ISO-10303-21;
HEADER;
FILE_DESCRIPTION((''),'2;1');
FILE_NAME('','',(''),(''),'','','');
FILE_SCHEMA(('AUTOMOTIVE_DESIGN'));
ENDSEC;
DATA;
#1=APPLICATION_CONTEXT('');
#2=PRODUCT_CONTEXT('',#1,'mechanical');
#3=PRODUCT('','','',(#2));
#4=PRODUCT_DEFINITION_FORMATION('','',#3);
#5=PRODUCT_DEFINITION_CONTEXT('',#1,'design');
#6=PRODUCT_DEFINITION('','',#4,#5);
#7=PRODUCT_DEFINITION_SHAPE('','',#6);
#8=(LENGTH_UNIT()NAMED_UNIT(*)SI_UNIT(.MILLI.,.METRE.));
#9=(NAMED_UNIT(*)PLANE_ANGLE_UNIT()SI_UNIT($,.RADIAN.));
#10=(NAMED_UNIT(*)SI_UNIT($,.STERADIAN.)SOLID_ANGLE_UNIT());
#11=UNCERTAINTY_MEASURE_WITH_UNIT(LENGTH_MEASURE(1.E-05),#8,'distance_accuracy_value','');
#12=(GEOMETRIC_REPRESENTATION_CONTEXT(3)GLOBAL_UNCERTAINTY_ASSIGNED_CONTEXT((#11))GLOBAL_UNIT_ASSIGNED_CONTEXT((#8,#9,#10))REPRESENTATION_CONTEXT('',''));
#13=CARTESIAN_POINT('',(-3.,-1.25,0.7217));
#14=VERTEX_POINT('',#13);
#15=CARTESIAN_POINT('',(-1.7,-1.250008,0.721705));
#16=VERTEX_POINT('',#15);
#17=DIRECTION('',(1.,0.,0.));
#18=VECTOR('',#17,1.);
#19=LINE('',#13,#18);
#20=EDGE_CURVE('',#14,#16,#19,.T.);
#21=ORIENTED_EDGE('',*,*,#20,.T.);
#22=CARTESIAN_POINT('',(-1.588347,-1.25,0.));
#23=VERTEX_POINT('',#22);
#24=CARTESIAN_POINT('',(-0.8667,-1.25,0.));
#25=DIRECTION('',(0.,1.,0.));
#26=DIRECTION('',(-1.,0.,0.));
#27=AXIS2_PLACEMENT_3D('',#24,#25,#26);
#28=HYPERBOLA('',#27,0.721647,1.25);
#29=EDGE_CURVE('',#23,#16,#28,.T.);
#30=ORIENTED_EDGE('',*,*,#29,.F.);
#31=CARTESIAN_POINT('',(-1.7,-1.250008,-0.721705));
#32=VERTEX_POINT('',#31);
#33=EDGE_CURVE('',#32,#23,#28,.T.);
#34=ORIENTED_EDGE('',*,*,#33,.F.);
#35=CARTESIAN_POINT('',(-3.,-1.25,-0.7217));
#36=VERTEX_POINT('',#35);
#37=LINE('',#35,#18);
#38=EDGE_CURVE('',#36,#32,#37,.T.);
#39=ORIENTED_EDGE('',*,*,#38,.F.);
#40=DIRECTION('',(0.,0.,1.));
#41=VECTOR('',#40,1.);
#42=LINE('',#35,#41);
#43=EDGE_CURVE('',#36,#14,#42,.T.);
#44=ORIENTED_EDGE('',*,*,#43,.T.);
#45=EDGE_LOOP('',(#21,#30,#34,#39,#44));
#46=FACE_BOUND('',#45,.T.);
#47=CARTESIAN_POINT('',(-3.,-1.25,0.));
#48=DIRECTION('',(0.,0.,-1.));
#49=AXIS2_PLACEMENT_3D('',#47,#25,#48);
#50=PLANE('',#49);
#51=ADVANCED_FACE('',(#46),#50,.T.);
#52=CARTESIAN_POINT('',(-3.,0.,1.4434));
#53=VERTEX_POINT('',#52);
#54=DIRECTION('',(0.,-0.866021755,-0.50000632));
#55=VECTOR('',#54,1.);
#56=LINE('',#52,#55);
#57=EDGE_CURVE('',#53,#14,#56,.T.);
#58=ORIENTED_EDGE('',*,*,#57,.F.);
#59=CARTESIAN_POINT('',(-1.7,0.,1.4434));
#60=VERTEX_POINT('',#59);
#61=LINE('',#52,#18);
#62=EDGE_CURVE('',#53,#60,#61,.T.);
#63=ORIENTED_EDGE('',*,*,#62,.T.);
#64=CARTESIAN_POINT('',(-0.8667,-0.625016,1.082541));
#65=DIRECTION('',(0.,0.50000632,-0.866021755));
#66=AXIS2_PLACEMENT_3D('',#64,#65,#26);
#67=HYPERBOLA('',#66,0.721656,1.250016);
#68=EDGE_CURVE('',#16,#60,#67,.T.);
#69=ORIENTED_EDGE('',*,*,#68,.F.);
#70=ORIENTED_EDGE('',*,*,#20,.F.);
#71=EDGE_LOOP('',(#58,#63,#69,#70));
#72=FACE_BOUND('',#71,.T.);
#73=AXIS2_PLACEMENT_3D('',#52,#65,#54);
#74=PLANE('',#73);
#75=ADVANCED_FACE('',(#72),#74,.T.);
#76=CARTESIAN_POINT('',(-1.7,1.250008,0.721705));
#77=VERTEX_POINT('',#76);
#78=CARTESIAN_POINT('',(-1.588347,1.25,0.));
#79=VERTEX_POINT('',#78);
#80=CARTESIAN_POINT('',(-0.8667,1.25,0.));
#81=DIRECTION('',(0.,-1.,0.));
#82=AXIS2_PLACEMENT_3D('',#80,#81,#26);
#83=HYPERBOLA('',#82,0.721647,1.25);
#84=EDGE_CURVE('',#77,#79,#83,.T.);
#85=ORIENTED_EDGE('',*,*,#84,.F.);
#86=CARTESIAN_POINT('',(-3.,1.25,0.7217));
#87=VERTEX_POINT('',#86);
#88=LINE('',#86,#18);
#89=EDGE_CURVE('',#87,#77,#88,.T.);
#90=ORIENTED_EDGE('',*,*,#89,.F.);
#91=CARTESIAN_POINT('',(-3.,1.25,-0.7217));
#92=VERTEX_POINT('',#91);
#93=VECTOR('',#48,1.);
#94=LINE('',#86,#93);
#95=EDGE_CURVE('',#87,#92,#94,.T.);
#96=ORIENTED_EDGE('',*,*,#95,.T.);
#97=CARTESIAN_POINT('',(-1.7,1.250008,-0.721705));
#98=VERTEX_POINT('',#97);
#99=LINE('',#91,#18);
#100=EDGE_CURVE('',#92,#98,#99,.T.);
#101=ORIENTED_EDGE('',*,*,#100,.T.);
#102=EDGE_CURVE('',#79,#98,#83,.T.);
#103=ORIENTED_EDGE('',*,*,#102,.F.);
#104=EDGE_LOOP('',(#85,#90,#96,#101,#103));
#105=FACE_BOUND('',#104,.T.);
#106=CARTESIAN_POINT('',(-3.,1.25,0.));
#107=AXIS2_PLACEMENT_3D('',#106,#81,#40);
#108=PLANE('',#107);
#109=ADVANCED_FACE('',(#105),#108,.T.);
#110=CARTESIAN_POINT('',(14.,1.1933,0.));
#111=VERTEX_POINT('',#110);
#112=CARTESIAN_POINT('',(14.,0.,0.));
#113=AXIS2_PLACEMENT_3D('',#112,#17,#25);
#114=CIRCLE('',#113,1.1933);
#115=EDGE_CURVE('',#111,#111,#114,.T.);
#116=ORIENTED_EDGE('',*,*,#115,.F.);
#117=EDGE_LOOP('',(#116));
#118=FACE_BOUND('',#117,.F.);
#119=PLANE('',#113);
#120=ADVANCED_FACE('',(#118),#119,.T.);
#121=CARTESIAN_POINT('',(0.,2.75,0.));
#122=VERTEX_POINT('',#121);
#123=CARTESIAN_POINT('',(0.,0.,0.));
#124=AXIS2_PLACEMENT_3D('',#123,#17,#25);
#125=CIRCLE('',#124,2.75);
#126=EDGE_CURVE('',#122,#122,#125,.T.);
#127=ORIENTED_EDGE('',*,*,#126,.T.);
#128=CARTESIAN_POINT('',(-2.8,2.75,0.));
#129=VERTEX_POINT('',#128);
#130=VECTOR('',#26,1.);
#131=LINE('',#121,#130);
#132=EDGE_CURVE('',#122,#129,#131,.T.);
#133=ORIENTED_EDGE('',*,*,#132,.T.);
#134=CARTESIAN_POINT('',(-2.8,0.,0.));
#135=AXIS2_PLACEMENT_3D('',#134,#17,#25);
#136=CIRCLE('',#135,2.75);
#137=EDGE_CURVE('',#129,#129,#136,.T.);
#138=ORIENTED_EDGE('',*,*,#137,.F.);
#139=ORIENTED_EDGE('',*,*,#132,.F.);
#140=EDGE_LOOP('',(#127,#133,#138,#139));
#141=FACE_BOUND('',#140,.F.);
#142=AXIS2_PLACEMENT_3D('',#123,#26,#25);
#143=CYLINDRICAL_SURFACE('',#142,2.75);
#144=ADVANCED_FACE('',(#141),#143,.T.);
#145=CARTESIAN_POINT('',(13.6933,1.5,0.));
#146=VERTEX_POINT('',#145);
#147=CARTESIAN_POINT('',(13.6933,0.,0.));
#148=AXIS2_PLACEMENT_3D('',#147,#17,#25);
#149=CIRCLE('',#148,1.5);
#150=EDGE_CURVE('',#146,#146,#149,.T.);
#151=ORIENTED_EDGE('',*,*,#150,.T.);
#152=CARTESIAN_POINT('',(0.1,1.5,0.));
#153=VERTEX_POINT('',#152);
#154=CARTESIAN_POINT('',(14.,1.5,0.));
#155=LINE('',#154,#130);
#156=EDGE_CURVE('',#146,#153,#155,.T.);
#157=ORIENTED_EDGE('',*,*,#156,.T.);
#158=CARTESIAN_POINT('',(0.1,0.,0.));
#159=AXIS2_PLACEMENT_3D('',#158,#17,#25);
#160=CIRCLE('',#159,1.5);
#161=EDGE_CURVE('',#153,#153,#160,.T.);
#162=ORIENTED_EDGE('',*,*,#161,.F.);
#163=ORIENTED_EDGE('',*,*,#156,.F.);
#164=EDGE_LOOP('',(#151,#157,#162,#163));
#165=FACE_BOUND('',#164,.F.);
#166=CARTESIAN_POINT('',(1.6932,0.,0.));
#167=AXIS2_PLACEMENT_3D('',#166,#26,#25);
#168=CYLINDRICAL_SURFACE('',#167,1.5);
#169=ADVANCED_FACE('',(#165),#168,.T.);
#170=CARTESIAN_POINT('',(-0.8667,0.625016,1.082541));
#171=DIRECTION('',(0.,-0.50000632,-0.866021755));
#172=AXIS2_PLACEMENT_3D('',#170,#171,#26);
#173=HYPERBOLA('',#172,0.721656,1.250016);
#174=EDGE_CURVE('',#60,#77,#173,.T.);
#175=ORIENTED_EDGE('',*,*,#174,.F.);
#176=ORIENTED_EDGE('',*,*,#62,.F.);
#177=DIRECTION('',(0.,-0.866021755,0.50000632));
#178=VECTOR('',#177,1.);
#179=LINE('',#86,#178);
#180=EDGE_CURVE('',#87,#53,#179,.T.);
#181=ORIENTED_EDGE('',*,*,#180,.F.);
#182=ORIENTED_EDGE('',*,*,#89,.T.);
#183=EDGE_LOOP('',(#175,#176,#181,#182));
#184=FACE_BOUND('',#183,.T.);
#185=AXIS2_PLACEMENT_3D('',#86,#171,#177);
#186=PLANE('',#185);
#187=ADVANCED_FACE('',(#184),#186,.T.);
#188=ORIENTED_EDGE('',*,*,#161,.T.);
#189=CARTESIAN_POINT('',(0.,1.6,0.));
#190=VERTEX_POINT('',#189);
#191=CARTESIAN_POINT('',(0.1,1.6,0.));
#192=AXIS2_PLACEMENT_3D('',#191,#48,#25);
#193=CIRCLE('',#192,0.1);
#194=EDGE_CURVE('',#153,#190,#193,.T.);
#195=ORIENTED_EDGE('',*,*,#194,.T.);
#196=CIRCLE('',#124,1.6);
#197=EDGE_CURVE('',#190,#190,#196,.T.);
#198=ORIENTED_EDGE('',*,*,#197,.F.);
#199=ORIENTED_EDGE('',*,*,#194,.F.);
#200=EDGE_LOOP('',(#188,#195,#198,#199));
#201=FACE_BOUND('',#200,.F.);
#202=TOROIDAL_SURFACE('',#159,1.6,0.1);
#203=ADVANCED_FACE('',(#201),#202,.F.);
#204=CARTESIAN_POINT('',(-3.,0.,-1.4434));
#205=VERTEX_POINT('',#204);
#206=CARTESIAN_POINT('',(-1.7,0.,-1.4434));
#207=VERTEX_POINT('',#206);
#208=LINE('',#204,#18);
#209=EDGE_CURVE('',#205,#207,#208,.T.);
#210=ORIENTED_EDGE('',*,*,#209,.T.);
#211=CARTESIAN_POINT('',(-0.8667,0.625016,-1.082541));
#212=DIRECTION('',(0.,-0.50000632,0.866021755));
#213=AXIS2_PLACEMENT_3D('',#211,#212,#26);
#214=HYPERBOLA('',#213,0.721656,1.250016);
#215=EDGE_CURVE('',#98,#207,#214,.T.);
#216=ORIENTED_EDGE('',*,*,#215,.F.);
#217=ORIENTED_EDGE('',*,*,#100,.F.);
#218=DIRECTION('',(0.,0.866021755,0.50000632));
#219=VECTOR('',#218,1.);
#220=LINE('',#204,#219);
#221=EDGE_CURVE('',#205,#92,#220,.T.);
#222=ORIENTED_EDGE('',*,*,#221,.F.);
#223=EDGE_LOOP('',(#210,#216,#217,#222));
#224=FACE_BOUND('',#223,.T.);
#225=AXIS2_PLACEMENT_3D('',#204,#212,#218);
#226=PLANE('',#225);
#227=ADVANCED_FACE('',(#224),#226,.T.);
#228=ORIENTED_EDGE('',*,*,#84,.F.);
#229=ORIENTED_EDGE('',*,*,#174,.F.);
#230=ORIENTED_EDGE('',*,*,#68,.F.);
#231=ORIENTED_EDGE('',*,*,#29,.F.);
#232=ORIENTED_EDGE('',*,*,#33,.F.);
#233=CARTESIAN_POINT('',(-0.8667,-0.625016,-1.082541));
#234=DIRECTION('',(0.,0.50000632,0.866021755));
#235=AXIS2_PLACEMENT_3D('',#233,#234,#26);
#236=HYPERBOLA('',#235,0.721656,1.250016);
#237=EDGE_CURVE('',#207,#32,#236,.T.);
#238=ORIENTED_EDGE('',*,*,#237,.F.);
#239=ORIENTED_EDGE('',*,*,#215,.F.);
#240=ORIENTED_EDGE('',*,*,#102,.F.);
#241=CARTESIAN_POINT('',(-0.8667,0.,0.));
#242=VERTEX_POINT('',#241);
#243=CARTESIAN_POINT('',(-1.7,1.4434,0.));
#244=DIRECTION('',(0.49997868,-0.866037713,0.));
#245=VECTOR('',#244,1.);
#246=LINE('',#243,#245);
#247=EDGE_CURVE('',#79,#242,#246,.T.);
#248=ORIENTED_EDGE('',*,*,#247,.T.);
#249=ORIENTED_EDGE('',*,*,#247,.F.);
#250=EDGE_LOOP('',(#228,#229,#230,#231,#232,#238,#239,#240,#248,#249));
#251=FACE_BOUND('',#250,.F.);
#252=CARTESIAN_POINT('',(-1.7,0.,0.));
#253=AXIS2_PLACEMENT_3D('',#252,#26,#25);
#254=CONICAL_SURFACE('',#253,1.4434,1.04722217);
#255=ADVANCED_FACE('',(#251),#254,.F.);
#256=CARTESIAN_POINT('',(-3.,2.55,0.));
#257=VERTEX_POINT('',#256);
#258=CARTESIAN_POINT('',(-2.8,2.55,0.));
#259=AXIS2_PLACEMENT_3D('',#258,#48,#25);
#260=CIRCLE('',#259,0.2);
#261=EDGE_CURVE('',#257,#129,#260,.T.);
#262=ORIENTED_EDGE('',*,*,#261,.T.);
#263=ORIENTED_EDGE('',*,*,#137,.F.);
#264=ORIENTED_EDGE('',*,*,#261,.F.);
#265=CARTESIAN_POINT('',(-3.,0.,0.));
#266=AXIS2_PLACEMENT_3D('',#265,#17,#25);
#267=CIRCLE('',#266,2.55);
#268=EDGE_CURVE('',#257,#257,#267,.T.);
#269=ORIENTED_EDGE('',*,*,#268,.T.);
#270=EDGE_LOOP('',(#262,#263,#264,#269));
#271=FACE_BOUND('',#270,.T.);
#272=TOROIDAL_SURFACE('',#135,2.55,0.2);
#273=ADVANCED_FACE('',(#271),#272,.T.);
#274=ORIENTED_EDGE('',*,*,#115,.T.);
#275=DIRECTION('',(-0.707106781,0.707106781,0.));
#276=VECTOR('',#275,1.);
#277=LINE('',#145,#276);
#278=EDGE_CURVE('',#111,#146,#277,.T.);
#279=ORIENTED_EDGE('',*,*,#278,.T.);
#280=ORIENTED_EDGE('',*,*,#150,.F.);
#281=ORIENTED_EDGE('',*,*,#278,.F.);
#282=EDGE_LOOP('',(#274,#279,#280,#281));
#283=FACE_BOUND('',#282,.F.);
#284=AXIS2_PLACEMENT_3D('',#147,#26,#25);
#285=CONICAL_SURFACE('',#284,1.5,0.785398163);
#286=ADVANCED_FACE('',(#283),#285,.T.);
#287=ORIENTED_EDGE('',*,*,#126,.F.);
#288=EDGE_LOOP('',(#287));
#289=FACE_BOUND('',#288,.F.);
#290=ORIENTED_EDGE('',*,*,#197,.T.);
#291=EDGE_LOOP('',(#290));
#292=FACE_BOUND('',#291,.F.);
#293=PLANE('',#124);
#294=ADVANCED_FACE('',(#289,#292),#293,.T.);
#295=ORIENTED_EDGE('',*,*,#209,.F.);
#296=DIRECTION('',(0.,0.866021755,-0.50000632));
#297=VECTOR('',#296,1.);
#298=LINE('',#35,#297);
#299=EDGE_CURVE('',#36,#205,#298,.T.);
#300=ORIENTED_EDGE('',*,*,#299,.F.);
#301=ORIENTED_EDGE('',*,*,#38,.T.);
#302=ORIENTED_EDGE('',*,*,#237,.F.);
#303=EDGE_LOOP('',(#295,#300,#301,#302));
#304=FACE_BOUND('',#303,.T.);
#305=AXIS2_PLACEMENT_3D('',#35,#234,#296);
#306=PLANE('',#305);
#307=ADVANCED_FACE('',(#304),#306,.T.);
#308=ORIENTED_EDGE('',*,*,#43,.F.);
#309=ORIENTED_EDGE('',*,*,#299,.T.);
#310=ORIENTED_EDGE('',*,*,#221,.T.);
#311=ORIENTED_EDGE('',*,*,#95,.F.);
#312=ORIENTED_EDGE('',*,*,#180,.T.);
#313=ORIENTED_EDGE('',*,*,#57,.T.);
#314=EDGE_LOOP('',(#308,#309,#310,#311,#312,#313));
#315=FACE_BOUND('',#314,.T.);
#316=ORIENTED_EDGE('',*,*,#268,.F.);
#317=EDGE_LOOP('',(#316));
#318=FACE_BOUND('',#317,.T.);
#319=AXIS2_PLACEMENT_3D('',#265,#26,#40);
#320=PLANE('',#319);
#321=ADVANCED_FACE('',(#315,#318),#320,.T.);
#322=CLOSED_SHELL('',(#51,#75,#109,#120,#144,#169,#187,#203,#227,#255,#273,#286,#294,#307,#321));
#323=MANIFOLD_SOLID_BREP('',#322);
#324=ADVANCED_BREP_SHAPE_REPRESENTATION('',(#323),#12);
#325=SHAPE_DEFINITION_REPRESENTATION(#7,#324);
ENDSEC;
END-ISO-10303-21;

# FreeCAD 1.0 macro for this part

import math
import FreeCAD as App
import Part
import Sketcher
from FreeCAD import Vector
Q = App.Units.Quantity


def edges_at(feature, points):
    """Names of the edges that pass closest to the given points."""
    edges = feature.Shape.Edges
    near = lambda p: min(range(len(edges)), key=lambda i: edges[i].distToShape(Part.Vertex(*p))[0])
    return sorted({f"Edge{near(p) + 1}" for p in points})

doc = App.newDocument("Part")
body = doc.addObject("PartDesign::Body", "Body")

sketch1 = doc.addObject("Sketcher::SketchObject", "Sketch")
body.addObject(sketch1)
sketch1.AttachmentSupport = (doc.XY_Plane, [""])
sketch1.MapMode = "FlatFace"
sketch1.addGeometry([
    Part.LineSegment(Vector(-1.7, 1.4434, 0), Vector(-0.8667, 0, 0)),
    Part.LineSegment(Vector(-0.8667, 0, 0), Vector(14, 0, 0)),
    Part.LineSegment(Vector(14, 0, 0), Vector(14, 1.5, 0)),
    Part.LineSegment(Vector(14, 1.5, 0), Vector(0, 1.5, 0)),
    Part.LineSegment(Vector(0, 1.5, 0), Vector(0, 2.75, 0)),
    Part.LineSegment(Vector(0, 2.75, 0), Vector(-3, 2.75, 0)),
    Part.LineSegment(Vector(-3, 2.75, 0), Vector(-3, 1.4434, 0)),
    Part.LineSegment(Vector(-3, 1.4434, 0), Vector(-1.7, 1.4434, 0)),
], False)
sketch1.addConstraint([
    Sketcher.Constraint("Coincident", 0, 2, 1, 1),
    Sketcher.Constraint("Coincident", 1, 2, 2, 1),
    Sketcher.Constraint("Coincident", 2, 2, 3, 1),
    Sketcher.Constraint("Coincident", 3, 2, 4, 1),
    Sketcher.Constraint("Coincident", 4, 2, 5, 1),
    Sketcher.Constraint("Coincident", 5, 2, 6, 1),
    Sketcher.Constraint("Coincident", 6, 2, 7, 1),
    Sketcher.Constraint("Coincident", 7, 2, 0, 1),
    Sketcher.Constraint("Horizontal", 1),
    Sketcher.Constraint("Vertical", 2),
    Sketcher.Constraint("Horizontal", 3),
    Sketcher.Constraint("Vertical", 4),
    Sketcher.Constraint("Horizontal", 5),
    Sketcher.Constraint("Vertical", 6),
    Sketcher.Constraint("Horizontal", 7),
    Sketcher.Constraint("PointOnObject", 0, 2, -1),
    Sketcher.Constraint("PointOnObject", 3, 2, -2),
    Sketcher.Constraint("DistanceX", 3, 2, 3, 1, Q("14 mm")),
    Sketcher.Constraint("DistanceX", 5, 2, 5, 1, Q("3 mm")),
    Sketcher.Constraint("DistanceX", 7, 1, 7, 2, Q("1.3 mm")),
    Sketcher.Constraint("DistanceY", 2, 1, 2, 2, Q("1.5 mm")),
    Sketcher.Constraint("DistanceY", 4, 1, 4, 2, Q("1.25 mm")),
    Sketcher.Constraint("DistanceX", 1, 1, 1, 2, Q("14.8667 mm")),
    Sketcher.Constraint("DistanceY", 6, 2, 6, 1, Q("1.3066 mm")),
])
revolution = doc.addObject("PartDesign::Revolution", "Revolution")
body.addObject(revolution)
revolution.Profile = sketch1
revolution.ReferenceAxis = (sketch1, ["H_Axis"])
revolution.Angle = 360

sketch2 = doc.addObject("Sketcher::SketchObject", "Sketch001")
body.addObject(sketch2)
sketch2.AttachmentSupport = (doc.YZ_Plane, [""])
sketch2.MapMode = "FlatFace"
sketch2.AttachmentOffset = App.Placement(Vector(0, 0, -3), App.Rotation())
sketch2.addGeometry([
    Part.LineSegment(Vector(1.25, 0.7217, 0), Vector(0, 1.4434, 0)),
    Part.ArcOfCircle(Part.Circle(Vector(0, 0, 0), Vector(0, 0, 1), 1.4434), math.radians(30.000418), math.radians(90)),
    Part.ArcOfCircle(Part.Circle(Vector(0, 0, 0), Vector(0, 0, 1), 1.4434), math.radians(90), math.radians(149.999582)),
    Part.LineSegment(Vector(0, 1.4434, 0), Vector(-1.25, 0.7217, 0)),
    Part.ArcOfCircle(Part.Circle(Vector(0, 0, 0), Vector(0, 0, 1), 1.4434), math.radians(-30.000418), math.radians(30.000418)),
    Part.LineSegment(Vector(1.25, 0.7217, 0), Vector(1.25, -0.7217, 0)),
    Part.LineSegment(Vector(-1.25, 0.7217, 0), Vector(-1.25, -0.7217, 0)),
    Part.ArcOfCircle(Part.Circle(Vector(0, 0, 0), Vector(0, 0, 1), 1.4434), math.radians(149.999582), math.radians(210.000418)),
    Part.LineSegment(Vector(-1.25, -0.7217, 0), Vector(0, -1.4434, 0)),
    Part.ArcOfCircle(Part.Circle(Vector(0, 0, 0), Vector(0, 0, 1), 1.4434), math.radians(-149.999582), math.radians(-90)),
    Part.ArcOfCircle(Part.Circle(Vector(0, 0, 0), Vector(0, 0, 1), 1.4434), math.radians(-90), math.radians(-30.000418)),
    Part.LineSegment(Vector(0, -1.4434, 0), Vector(1.25, -0.7217, 0)),
], False)
sketch2.addConstraint([
    Sketcher.Constraint("Coincident", 0, 1, 1, 1),
    Sketcher.Constraint("Coincident", 1, 2, 0, 2),
    Sketcher.Constraint("Coincident", 2, 1, 3, 1),
    Sketcher.Constraint("Coincident", 3, 2, 2, 2),
    Sketcher.Constraint("Coincident", 4, 1, 5, 2),
    Sketcher.Constraint("Coincident", 5, 1, 4, 2),
    Sketcher.Constraint("Coincident", 6, 1, 7, 1),
    Sketcher.Constraint("Coincident", 7, 2, 6, 2),
    Sketcher.Constraint("Coincident", 8, 1, 9, 1),
    Sketcher.Constraint("Coincident", 9, 2, 8, 2),
    Sketcher.Constraint("Coincident", 10, 1, 11, 1),
    Sketcher.Constraint("Coincident", 11, 2, 10, 2),
    Sketcher.Constraint("Vertical", 5),
    Sketcher.Constraint("Vertical", 6),
    Sketcher.Constraint("Coincident", 1, 3, -1, 1),
    Sketcher.Constraint("Coincident", 2, 3, -1, 1),
    Sketcher.Constraint("Coincident", 4, 3, -1, 1),
    Sketcher.Constraint("Coincident", 7, 3, -1, 1),
    Sketcher.Constraint("Coincident", 9, 3, -1, 1),
    Sketcher.Constraint("Coincident", 10, 3, -1, 1),
    Sketcher.Constraint("Coincident", 2, 1, 1, 2),
    Sketcher.Constraint("Coincident", 5, 1, 0, 1),
    Sketcher.Constraint("Coincident", 6, 1, 3, 2),
    Sketcher.Constraint("Coincident", 8, 1, 7, 2),
    Sketcher.Constraint("Coincident", 10, 1, 9, 2),
    Sketcher.Constraint("PointOnObject", 1, 2, -2),
    Sketcher.Constraint("PointOnObject", 9, 2, -2),
    Sketcher.Constraint("Parallel", 0, 8),
    Sketcher.Constraint("Parallel", 3, 11),
    Sketcher.Constraint("Angle", 0, Q("149.9996 deg")),
    Sketcher.Constraint("Radius", 1, Q("1.4434 mm")),
])
pad1 = doc.addObject("PartDesign::Pad", "Pad")
body.addObject(pad1)
pad1.Profile = sketch2
pad1.Type = "UpToFirst"
doc.recompute()

fillet = doc.addObject("PartDesign::Fillet", "Fillet")
body.addObject(fillet)
fillet.Base = (pad1, edges_at(pad1, [(-3, -2.75, 0)]))
fillet.Radius = 0.2
doc.recompute()

chamfer = doc.addObject("PartDesign::Chamfer", "Chamfer")
body.addObject(chamfer)
chamfer.Base = (fillet, edges_at(fillet, [(14, -1.5, 0)]))
chamfer.ChamferType = "Two distances"
chamfer.Size = 0.3067
chamfer.Size2 = 0.3067
doc.recompute()

fillet2 = doc.addObject("PartDesign::Fillet", "Fillet001")
body.addObject(fillet2)
fillet2.Base = (chamfer, edges_at(chamfer, [(0, -1.5, 0)]))
fillet2.Radius = 0.1

doc.recompute()
